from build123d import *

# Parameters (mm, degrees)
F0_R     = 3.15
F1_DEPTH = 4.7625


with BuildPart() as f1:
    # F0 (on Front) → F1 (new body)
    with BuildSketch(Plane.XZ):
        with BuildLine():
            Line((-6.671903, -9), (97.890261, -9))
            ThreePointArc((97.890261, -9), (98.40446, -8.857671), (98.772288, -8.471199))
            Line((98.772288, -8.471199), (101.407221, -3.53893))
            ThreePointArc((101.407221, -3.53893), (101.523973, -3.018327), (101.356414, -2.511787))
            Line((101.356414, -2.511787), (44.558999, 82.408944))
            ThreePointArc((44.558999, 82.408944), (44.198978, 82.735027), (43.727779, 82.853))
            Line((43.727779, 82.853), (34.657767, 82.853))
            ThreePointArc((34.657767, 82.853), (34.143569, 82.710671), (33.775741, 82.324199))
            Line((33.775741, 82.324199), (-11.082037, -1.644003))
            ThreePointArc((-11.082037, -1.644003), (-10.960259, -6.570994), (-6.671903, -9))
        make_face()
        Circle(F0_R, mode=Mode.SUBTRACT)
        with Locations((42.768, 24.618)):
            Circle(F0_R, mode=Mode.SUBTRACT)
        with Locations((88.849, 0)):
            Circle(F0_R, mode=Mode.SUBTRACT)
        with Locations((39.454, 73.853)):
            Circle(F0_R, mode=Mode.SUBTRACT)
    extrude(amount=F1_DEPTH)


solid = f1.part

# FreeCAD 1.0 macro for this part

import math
import FreeCAD as App
import Part
import Sketcher

V = App.Vector

doc = App.newDocument("Part")
params = doc.addObject("Spreadsheet::Sheet", "Params")
for row, (alias, value) in enumerate([
    ("sketch1_radius", "1 mm"),
    ("sketch1_radius2", "1 mm"),
    ("sketch1_radius3", "1 mm"),
    ("sketch1_radius4", "1 mm"),
    ("sketch1_radius5", "5 mm"),
    ("pad1_length", "4.7625 mm"),
], start=1):
    params.set(f"A{row}", alias)
    params.set(f"B{row}", "=" + value)
    params.setAlias(f"B{row}", alias)

body = doc.addObject("PartDesign::Body", "Body")

sketch1 = body.newObject("Sketcher::SketchObject", "Sketch")
sketch1.AttachmentSupport = (doc.getObject("XZ_Plane"), [""])
sketch1.MapMode = "FlatFace"
sketch1.addGeometry(Part.LineSegment(V(-6.671903, -9, 0), V(97.890261, -9, 0)), False)
sketch1.addGeometry(Part.ArcOfCircle(Part.Circle(V(97.890261, -8, 0), V(0, 0, 1), 1), math.radians(-90.000013), math.radians(-28.112146)), False)
sketch1.addGeometry(Part.LineSegment(V(98.772288, -8.471199, 0), V(101.407221, -3.53893, 0)), False)
sketch1.addGeometry(Part.ArcOfCircle(Part.Circle(V(100.525194, -3.067731, 0), V(0, 0, 1), 1), math.radians(-28.112157), math.radians(33.775742)), False)
sketch1.addGeometry(Part.LineSegment(V(101.356414, -2.511787, 0), V(44.558999, 82.408944, 0)), False)
sketch1.addGeometry(Part.ArcOfCircle(Part.Circle(V(43.727779, 81.853, 0), V(0, 0, 1), 1), math.radians(33.775773), math.radians(90.000002)), False)
sketch1.addGeometry(Part.LineSegment(V(43.727779, 82.853, 0), V(34.657767, 82.853, 0)), False)
sketch1.addGeometry(Part.ArcOfCircle(Part.Circle(V(34.657768, 81.853, 0), V(0, 0, 1), 1), math.radians(90.000045), math.radians(151.887854)), False)
sketch1.addGeometry(Part.LineSegment(V(33.775741, 82.324199, 0), V(-11.082037, -1.644003, 0)), False)
sketch1.addGeometry(Part.ArcOfCircle(Part.Circle(V(-6.671904, -4, 0), V(0, 0, 1), 5), math.radians(151.887812), math.radians(270.000012)), False)
sketch1.addGeometry(Part.Circle(V(0, 0, 0), V(0, 0, 1), 3.15), False)
sketch1.addGeometry(Part.Circle(V(42.768, 24.618, 0), V(0, 0, 1), 3.15), False)
sketch1.addGeometry(Part.Circle(V(88.849, 0, 0), V(0, 0, 1), 3.15), False)
sketch1.addGeometry(Part.Circle(V(39.454, 73.853, 0), V(0, 0, 1), 3.15), False)
sketch1.addConstraint(Sketcher.Constraint("Coincident", 0, 2, 1, 1))
sketch1.addConstraint(Sketcher.Constraint("Coincident", 1, 2, 2, 1))
sketch1.addConstraint(Sketcher.Constraint("Coincident", 2, 2, 3, 1))
sketch1.addConstraint(Sketcher.Constraint("Coincident", 3, 2, 4, 1))
sketch1.addConstraint(Sketcher.Constraint("Coincident", 4, 2, 5, 1))
sketch1.addConstraint(Sketcher.Constraint("Coincident", 5, 2, 6, 1))
sketch1.addConstraint(Sketcher.Constraint("Coincident", 6, 2, 7, 1))
sketch1.addConstraint(Sketcher.Constraint("Coincident", 7, 2, 8, 1))
sketch1.addConstraint(Sketcher.Constraint("Coincident", 8, 2, 9, 1))
sketch1.addConstraint(Sketcher.Constraint("Coincident", 9, 2, 0, 1))
sketch1.addConstraint(Sketcher.Constraint("Horizontal", 0))
sketch1.addConstraint(Sketcher.Constraint("Horizontal", 6))
sketch1.addConstraint(Sketcher.Constraint("Coincident", 10, 3, -1, 1))
sketch1.addConstraint(Sketcher.Constraint("PointOnObject", 12, 3, -1))
sketch1.addConstraint(Sketcher.Constraint("Radius", 1, 1.0))
sketch1.addConstraint(Sketcher.Constraint("Radius", 3, 1.0))
sketch1.addConstraint(Sketcher.Constraint("Radius", 5, 1.0))
sketch1.addConstraint(Sketcher.Constraint("Radius", 7, 1.0))
sketch1.addConstraint(Sketcher.Constraint("Radius", 9, 5.0))
sketch1.addConstraint(Sketcher.Constraint("Diameter", 10, 6.3))
sketch1.addConstraint(Sketcher.Constraint("Diameter", 11, 6.3))
sketch1.addConstraint(Sketcher.Constraint("Diameter", 12, 6.3))
sketch1.addConstraint(Sketcher.Constraint("Diameter", 13, 6.3))
sketch1.addConstraint(Sketcher.Constraint("DistanceY", 1, 3, -1, 1, 8.0))
sketch1.addConstraint(Sketcher.Constraint("DistanceY", 13, 3, 5, 3, 8.0))
sketch1.addConstraint(Sketcher.Constraint("DistanceX", 4, 2, 12, 3, 44.290001))
sketch1.addConstraint(Sketcher.Constraint("DistanceY", -1, 1, 5, 3, 81.853))
sketch1.addConstraint(Sketcher.Constraint("DistanceX", -1, 1, 11, 3, 42.768))
sketch1.addConstraint(Sketcher.Constraint("DistanceY", -1, 1, 11, 3, 24.618))
sketch1.addConstraint(Sketcher.Constraint("DistanceX", -1, 1, 12, 3, 88.849))
sketch1.addConstraint(Sketcher.Constraint("DistanceX", -1, 1, 13, 3, 39.454))
sketch1.addConstraint(Sketcher.Constraint("DistanceX", 6, 2, 6, 1, 9.070012))
sketch1.addConstraint(Sketcher.Constraint("DistanceY", 1, 2, -1, 1, 8.471199))
sketch1.addConstraint(Sketcher.Constraint("DistanceY", -1, 1, 7, 2, 82.324199))
sketch1.addConstraint(Sketcher.Constraint("DistanceY", 2, 2, 3, 3, 0.471199))
sketch1.addConstraint(Sketcher.Constraint("DistanceY", 8, 2, 7, 2, 83.968202))
sketch1.addConstraint(Sketcher.Constraint("Distance", 2, 5.591972))
sketch1.addConstraint(Sketcher.Constraint("Distance", 4, 102.163971))
sketch1.addConstraint(Sketcher.Constraint("DistanceX", 0, 1, 0, 2, 104.562164))
sketch1.addConstraint(Sketcher.Constraint("DistanceX", -1, 1, 1, 3, 97.890261))
sketch1.addConstraint(Sketcher.Constraint("DistanceY", 3, 3, -1, 1, 3.067731))
sketch1.addConstraint(Sketcher.Constraint("DistanceX", -1, 1, 5, 3, 43.727779))
sketch1.addConstraint(Sketcher.Constraint("DistanceX", -1, 1, 0, 2, 97.890261))
sketch1.addConstraint(Sketcher.Constraint("DistanceX", -1, 1, 5, 2, 43.727779))
sketch1.addConstraint(Sketcher.Constraint("DistanceX", -1, 1, 7, 2, 33.775741))
sketch1.addConstraint(Sketcher.Constraint("DistanceX", 9, 3, 7, 3, 41.329672))
sketch1.setExpression("Constraints[14]", "Params.sketch1_radius")
sketch1.setExpression("Constraints[15]", "Params.sketch1_radius2")
sketch1.setExpression("Constraints[16]", "Params.sketch1_radius3")
sketch1.setExpression("Constraints[17]", "Params.sketch1_radius4")
sketch1.setExpression("Constraints[18]", "Params.sketch1_radius5")
pad1 = body.newObject("PartDesign::Pad", "Pad")
pad1.Profile = sketch1
pad1.setExpression("Length", "Params.pad1_length")

doc.recompute()
